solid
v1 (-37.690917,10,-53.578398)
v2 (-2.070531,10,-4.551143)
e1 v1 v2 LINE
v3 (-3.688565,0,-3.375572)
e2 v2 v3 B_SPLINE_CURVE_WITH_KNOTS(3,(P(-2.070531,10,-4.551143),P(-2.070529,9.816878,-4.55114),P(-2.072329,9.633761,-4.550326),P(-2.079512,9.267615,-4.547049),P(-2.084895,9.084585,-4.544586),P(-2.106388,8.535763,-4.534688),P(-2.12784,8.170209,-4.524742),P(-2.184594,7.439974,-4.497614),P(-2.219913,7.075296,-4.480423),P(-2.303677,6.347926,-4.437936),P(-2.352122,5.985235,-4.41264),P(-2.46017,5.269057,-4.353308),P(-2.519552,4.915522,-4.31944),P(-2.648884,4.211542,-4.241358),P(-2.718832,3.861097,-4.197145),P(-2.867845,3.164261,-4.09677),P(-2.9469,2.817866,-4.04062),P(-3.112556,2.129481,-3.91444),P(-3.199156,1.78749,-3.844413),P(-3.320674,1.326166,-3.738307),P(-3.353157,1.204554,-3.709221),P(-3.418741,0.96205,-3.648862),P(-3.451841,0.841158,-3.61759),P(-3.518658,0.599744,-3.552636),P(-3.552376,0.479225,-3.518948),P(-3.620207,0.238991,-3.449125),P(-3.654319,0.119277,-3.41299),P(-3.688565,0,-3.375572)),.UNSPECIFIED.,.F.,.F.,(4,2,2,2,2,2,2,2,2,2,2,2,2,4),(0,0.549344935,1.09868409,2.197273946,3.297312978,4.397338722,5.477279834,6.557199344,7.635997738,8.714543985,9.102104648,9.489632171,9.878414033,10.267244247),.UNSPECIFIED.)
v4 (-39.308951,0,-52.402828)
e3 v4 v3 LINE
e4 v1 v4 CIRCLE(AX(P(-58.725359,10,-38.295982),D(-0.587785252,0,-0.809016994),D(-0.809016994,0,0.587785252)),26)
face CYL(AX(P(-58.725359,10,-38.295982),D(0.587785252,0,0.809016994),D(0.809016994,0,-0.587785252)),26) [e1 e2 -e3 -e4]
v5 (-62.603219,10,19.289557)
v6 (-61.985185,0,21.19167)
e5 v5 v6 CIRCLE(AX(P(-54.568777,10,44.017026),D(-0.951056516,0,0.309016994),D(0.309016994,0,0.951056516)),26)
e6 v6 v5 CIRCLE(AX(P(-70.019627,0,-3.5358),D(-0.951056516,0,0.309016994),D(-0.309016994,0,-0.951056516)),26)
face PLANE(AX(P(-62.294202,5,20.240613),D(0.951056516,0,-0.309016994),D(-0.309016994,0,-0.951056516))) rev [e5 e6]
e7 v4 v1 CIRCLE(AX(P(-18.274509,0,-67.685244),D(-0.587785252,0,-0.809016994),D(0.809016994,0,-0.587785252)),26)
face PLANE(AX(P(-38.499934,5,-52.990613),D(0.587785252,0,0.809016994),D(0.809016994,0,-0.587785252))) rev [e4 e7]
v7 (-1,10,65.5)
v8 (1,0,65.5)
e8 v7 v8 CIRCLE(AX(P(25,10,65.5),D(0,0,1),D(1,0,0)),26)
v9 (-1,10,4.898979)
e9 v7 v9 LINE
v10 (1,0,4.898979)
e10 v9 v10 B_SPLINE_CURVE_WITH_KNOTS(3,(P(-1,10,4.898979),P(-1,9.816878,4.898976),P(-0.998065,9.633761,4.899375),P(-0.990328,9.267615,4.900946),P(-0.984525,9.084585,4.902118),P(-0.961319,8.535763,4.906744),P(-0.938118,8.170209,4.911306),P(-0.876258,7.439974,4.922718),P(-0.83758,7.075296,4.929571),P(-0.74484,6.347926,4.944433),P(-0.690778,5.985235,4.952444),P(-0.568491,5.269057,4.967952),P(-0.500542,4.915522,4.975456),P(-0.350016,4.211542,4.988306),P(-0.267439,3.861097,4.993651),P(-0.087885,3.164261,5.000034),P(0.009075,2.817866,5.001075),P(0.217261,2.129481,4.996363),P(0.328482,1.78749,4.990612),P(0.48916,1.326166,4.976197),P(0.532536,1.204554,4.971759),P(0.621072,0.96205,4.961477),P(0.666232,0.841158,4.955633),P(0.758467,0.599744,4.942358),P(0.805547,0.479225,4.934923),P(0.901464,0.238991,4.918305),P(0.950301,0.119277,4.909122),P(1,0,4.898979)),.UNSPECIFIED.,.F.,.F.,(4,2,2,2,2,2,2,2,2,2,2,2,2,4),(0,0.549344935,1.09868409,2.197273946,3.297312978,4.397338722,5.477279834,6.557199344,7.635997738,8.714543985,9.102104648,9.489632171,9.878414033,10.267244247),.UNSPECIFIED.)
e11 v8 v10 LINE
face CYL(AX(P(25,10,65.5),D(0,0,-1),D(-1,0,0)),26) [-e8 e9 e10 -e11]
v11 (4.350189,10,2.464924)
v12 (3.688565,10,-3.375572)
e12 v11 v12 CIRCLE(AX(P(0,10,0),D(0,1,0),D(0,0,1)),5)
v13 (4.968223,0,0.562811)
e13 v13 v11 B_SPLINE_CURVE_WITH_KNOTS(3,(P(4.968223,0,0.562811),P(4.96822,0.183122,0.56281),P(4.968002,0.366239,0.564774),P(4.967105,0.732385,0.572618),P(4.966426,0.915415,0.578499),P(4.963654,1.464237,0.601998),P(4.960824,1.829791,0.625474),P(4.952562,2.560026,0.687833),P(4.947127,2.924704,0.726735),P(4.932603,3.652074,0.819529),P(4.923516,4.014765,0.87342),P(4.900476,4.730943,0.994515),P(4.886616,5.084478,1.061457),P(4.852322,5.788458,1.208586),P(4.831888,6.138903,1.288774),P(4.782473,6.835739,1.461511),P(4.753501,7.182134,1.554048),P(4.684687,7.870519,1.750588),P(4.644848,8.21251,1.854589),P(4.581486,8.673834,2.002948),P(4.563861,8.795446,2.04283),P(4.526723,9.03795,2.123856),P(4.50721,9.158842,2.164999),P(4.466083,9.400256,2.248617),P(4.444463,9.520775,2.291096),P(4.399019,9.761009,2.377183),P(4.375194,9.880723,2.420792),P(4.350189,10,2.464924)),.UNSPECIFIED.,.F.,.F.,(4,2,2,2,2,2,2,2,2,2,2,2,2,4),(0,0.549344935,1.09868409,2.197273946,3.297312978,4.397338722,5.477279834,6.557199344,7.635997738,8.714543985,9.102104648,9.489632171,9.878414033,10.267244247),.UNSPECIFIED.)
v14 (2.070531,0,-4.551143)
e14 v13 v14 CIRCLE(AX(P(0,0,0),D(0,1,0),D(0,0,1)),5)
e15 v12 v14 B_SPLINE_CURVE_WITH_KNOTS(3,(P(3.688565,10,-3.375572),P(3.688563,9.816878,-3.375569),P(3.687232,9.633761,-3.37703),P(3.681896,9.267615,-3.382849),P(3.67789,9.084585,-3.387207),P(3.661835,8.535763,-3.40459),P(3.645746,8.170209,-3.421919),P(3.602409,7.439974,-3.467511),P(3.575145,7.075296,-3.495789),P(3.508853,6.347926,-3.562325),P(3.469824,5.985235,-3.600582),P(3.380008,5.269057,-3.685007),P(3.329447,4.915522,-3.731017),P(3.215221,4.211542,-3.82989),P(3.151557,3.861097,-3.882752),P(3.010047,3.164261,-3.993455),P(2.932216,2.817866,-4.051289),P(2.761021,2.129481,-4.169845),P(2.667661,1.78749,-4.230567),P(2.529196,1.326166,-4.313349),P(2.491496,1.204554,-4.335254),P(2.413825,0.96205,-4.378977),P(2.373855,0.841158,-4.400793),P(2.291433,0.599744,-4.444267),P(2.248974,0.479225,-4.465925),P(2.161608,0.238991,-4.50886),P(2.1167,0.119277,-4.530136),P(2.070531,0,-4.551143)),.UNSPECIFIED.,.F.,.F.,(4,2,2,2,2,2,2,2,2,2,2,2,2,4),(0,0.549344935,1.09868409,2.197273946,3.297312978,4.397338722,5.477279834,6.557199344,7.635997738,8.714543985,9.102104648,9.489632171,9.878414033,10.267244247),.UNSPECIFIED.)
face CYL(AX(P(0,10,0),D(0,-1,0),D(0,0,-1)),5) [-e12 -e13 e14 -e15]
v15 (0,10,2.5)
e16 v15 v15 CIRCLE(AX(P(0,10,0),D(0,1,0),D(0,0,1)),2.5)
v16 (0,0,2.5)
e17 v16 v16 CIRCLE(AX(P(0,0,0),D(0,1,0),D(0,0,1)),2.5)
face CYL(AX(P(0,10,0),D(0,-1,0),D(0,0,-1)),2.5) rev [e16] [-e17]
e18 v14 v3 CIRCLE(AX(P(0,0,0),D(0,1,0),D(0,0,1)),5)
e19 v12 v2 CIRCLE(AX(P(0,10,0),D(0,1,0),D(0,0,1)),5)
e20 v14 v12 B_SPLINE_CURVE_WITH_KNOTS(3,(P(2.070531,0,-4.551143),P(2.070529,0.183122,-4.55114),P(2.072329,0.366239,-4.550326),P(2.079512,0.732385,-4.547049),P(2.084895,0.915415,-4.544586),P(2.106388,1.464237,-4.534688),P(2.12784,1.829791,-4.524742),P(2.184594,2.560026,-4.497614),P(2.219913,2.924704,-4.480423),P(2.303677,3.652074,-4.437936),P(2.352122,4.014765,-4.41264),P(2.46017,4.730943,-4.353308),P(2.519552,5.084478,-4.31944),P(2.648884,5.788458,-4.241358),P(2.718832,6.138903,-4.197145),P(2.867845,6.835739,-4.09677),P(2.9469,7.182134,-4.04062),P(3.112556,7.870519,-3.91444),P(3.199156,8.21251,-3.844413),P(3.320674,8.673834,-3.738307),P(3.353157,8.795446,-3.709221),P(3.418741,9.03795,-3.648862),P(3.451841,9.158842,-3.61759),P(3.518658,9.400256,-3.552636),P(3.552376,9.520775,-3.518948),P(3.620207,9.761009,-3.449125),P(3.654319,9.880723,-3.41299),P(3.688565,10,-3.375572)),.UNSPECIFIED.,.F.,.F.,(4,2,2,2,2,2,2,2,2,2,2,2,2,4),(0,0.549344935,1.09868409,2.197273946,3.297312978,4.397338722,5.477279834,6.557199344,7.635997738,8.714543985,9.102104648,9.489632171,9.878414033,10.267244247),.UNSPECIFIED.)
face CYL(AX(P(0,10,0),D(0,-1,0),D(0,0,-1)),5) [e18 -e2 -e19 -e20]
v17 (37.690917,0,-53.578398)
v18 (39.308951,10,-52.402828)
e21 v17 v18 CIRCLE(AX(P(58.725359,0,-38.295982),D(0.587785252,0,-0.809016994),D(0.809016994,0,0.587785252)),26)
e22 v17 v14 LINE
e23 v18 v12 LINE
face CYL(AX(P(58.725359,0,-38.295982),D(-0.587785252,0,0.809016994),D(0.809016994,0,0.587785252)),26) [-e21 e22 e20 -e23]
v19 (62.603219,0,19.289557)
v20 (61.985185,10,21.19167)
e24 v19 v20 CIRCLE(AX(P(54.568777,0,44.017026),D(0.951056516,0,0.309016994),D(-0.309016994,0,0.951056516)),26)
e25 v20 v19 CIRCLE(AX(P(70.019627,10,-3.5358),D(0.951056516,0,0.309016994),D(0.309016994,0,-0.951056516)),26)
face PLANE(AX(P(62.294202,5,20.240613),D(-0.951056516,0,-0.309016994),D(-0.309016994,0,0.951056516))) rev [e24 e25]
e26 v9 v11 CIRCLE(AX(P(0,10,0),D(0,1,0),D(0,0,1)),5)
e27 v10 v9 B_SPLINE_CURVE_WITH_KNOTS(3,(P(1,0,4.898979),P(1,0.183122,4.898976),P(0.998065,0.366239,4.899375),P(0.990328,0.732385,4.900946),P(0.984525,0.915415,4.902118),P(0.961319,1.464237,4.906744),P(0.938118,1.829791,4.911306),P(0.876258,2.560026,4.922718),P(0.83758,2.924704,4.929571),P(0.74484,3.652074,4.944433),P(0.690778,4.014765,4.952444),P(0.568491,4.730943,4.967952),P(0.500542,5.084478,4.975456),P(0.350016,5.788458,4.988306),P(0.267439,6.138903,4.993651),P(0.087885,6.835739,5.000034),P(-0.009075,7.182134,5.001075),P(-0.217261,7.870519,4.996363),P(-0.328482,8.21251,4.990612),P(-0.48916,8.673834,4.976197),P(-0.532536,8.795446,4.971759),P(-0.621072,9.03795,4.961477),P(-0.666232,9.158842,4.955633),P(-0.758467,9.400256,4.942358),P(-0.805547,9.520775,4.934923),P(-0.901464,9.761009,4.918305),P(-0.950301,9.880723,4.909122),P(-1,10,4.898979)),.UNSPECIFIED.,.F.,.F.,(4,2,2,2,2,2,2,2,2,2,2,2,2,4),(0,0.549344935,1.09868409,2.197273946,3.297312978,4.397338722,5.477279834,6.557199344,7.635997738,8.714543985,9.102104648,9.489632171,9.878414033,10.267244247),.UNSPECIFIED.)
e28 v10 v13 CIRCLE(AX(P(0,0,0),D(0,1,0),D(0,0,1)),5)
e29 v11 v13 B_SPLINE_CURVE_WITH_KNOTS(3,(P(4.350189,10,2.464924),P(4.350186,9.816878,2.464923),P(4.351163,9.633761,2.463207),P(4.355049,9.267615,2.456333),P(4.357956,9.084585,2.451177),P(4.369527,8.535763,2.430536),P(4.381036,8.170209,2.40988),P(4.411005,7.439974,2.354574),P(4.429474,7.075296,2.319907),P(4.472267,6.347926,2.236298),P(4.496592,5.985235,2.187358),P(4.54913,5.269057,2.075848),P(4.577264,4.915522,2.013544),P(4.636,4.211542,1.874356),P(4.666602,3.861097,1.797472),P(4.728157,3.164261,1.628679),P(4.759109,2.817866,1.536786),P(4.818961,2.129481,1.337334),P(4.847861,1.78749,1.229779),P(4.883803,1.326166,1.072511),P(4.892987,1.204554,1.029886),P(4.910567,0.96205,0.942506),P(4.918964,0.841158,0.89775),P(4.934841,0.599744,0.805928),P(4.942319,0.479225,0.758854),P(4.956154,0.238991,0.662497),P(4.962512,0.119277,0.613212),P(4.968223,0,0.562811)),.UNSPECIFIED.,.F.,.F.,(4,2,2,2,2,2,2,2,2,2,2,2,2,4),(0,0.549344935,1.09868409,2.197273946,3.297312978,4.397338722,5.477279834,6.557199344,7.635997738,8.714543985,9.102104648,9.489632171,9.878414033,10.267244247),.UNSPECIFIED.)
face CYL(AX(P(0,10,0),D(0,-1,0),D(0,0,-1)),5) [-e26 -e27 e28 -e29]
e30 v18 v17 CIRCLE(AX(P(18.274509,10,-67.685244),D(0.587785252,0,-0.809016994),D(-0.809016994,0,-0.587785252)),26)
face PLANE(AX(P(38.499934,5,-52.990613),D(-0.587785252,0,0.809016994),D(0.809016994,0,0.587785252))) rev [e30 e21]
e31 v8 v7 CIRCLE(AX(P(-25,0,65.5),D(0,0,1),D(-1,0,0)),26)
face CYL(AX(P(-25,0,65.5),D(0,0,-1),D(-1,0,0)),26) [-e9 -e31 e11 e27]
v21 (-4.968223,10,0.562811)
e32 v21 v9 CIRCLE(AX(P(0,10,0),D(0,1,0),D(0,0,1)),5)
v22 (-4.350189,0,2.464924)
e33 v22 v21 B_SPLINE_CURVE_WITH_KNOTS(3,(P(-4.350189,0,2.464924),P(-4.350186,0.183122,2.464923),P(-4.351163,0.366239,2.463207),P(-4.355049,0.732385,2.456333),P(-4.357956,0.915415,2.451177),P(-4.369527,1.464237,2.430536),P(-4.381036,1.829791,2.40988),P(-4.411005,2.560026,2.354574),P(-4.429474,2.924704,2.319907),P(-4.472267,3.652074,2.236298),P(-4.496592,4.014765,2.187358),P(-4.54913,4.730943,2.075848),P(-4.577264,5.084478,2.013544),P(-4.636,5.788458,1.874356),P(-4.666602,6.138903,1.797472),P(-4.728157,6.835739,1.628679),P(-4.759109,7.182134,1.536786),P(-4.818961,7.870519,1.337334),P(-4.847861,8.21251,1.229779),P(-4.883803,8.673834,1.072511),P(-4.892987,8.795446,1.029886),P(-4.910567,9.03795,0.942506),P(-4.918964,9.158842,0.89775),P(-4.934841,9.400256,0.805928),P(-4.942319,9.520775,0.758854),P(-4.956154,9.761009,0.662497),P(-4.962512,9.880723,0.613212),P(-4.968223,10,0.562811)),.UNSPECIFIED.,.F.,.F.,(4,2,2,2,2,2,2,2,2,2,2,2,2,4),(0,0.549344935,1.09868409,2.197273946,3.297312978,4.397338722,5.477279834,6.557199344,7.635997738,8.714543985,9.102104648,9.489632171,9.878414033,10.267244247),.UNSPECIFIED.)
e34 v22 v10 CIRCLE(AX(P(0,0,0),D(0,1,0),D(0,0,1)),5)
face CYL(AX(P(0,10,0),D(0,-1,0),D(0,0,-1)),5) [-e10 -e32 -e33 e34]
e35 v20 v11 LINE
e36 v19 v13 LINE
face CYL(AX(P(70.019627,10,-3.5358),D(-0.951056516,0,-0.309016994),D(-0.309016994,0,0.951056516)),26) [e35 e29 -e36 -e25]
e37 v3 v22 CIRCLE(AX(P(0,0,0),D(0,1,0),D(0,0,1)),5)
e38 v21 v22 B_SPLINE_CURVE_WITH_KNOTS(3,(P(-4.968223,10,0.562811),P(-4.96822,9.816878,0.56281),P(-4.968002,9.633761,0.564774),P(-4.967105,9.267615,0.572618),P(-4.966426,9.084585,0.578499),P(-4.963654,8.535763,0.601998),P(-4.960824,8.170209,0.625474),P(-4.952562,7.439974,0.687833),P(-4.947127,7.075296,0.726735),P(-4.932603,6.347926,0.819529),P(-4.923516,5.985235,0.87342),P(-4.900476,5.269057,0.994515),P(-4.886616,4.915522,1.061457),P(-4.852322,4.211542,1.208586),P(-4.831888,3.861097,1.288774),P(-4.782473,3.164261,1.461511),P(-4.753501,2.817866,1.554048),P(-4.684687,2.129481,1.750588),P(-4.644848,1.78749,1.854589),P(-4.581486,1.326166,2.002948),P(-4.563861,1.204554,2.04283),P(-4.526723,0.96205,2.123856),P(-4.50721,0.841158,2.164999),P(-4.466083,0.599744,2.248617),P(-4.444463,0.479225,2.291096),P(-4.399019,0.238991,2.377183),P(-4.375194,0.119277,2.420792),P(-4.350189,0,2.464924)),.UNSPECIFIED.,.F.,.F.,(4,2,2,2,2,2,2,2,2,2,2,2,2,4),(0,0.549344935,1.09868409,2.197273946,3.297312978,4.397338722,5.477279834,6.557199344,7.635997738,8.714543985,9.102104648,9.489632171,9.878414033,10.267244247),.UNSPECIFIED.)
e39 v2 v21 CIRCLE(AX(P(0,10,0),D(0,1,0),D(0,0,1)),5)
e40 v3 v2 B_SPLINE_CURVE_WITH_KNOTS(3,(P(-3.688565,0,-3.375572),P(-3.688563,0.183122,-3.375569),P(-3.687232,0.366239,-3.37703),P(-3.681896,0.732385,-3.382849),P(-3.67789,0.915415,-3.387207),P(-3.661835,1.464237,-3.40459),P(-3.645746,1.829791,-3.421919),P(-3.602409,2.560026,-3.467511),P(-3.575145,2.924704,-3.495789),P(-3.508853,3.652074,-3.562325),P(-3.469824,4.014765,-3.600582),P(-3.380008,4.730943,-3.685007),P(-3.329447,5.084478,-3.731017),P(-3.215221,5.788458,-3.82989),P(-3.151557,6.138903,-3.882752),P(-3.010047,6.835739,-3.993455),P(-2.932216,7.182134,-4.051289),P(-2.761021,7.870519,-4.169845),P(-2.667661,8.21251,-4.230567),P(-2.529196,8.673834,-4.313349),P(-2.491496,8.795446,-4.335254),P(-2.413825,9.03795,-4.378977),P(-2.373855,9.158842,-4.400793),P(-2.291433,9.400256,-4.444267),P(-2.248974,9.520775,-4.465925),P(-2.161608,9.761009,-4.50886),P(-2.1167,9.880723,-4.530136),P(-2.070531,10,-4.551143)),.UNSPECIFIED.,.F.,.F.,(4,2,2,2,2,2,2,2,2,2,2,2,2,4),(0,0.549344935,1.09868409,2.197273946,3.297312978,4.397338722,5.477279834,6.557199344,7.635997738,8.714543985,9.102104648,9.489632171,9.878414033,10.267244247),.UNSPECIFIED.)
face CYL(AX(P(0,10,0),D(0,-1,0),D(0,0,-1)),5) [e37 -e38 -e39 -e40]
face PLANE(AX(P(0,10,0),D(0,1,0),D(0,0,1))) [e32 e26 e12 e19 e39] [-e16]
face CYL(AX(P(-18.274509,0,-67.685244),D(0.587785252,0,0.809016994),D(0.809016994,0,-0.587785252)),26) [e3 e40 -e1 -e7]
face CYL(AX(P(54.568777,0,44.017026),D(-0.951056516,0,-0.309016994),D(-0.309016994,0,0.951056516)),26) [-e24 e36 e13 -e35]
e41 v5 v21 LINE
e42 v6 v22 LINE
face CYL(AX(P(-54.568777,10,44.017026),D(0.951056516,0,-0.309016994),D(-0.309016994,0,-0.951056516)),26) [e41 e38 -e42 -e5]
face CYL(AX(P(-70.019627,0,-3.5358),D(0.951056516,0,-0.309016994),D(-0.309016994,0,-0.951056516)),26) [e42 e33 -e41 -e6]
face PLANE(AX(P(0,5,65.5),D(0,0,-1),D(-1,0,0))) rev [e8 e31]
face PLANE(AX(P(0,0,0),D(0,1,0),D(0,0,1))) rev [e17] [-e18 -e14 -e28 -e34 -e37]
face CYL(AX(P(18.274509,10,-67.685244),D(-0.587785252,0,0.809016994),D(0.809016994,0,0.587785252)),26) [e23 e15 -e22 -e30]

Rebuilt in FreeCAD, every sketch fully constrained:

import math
import FreeCAD as App
import Part
import Sketcher

V = App.Vector

doc = App.newDocument("Part")
body = doc.addObject("PartDesign::Body", "Body")

sketch1 = body.newObject("Sketcher::SketchObject", "Sketch")
sketch1.AttachmentSupport = (doc.getObject("XZ_Plane"), [""])
sketch1.MapMode = "FlatFace"
sketch1.addGeometry([
    Part.Circle(V(0, 0, 0), V(0, 0, 1), 5),
    Part.Circle(V(0, 0, 0), V(0, 0, 1), 2.5),
], False)
sketch1.addConstraint([
    Sketcher.Constraint("Coincident", 0, 3, -1, 1),
    Sketcher.Constraint("Coincident", 1, 3, -1, 1),
    Sketcher.Constraint("Diameter", 0, 10.0),
    Sketcher.Constraint("Diameter", 1, 5.0),
])
pad1 = body.newObject("PartDesign::Pad", "Pad")
pad1.Profile = sketch1
pad1.Length = 10
pad1.Reversed = True

sketch2 = body.newObject("Sketcher::SketchObject", "Sketch001")
sketch2.AttachmentSupport = (doc.getObject("XY_Plane"), [""])
sketch2.MapMode = "FlatFace"
sketch2.AttachmentOffset = App.Placement(V(0, 0, 4), App.Rotation())
sketch2.addGeometry([
    Part.ArcOfCircle(Part.Circle(V(25, 10, 0), V(0, 0, 1), 26), math.radians(180), math.radians(203)),
    Part.ArcOfCircle(Part.Circle(V(-25, 0, 0), V(0, 0, 1), 26), math.radians(0), math.radians(23)),
], False)
sketch2.addConstraint([
    Sketcher.Constraint("Coincident", 0, 1, 1, 2),
    Sketcher.Constraint("Coincident", 1, 1, 0, 2),
    Sketcher.Constraint("Equal", 0, 1),
    Sketcher.Constraint("PointOnObject", 1, 3, -1),
    Sketcher.Constraint("PointOnObject", 1, 1, -1),
    Sketcher.Constraint("Radius", 0, 26.0),
    Sketcher.Constraint("DistanceX", -1, 1, 0, 3, 25.0),
    Sketcher.Constraint("DistanceY", -1, 1, 0, 3, 10.0),
])
pad2 = body.newObject("PartDesign::Pad", "Pad001")
pad2.Profile = sketch2
pad2.Length = 61.5
doc.recompute()

polarpattern = body.newObject("PartDesign::PolarPattern", "PolarPattern")
polarpattern.Originals = [pad2]
polarpattern.Axis = (doc.getObject("Y_Axis"), [""])
polarpattern.Angle = 360
polarpattern.Occurrences = 5
body.Tip = polarpattern

doc.recompute()
